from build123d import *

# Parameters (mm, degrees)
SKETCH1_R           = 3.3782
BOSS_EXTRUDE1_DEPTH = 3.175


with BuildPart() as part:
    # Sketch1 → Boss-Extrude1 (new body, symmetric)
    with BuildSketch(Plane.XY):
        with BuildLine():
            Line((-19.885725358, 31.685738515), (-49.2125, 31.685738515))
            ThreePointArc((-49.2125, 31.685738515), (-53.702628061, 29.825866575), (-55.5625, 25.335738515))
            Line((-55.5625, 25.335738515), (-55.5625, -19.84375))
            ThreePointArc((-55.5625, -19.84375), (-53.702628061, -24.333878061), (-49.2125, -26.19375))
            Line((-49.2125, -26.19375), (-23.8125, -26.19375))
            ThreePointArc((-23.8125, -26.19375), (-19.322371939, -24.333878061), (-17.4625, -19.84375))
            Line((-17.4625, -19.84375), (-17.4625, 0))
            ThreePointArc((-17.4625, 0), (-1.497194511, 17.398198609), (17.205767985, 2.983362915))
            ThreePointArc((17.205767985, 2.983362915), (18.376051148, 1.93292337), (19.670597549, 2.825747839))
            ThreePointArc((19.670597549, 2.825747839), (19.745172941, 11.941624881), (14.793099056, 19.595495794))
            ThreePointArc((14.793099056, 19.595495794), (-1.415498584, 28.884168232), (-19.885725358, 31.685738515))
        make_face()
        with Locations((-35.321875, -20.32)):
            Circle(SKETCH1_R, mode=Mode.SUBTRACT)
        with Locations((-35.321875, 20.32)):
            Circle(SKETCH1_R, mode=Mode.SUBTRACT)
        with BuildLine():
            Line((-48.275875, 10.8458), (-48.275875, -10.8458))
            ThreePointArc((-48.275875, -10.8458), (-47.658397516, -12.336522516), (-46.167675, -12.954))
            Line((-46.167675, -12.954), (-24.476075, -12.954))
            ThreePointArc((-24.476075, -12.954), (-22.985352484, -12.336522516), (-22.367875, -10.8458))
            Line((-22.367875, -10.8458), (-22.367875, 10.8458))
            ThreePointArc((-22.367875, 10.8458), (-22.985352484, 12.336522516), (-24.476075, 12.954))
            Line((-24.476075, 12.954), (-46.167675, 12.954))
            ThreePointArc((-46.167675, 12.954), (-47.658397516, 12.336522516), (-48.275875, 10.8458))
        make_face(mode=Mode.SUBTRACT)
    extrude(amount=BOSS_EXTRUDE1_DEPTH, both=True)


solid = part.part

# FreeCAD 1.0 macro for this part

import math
import FreeCAD as App
import Part
import Sketcher

V = App.Vector
Q = App.Units.Quantity

doc = App.newDocument("Part")
params = doc.addObject("Spreadsheet::Sheet", "Params")
for row, (alias, value) in enumerate([
    ("sketch1_radius", "2 in"),
    ("sketch1_width", "1 in"),
    ("sketch1_radius2", "0.25 in"),
    ("sketch1_radius3", "0.05 in"),
    ("sketch1_diameter", "0.266 in"),
    ("pad1_length", "0.25 in"),
], start=1):
    params.set(f"A{row}", alias)
    params.set(f"B{row}", "=" + value)
    params.setAlias(f"B{row}", alias)

body = doc.addObject("PartDesign::Body", "Body")

# Sketch on XY plane
sketch1 = doc.addObject("Sketcher::SketchObject", "Sketch")
body.addObject(sketch1)
sketch1.AttachmentSupport = (doc.XY_Plane, [""])
sketch1.MapMode = "FlatFace"
sketch1.addGeometry(Part.LineSegment(V(-19.885725, 31.685739, 0), V(-49.2125, 31.685739, 0)), False)
sketch1.addGeometry(Part.ArcOfCircle(Part.Circle(V(-49.2125, 25.335739, 0), V(0, 0, 1), 6.35), math.radians(90), math.radians(180)), False)
sketch1.addGeometry(Part.LineSegment(V(-55.5625, 25.335739, 0), V(-55.5625, -19.84375, 0)), False)
sketch1.addGeometry(Part.ArcOfCircle(Part.Circle(V(-49.2125, -19.84375, 0), V(0, 0, 1), 6.35), math.radians(180), math.radians(270)), False)
sketch1.addGeometry(Part.LineSegment(V(-49.2125, -26.19375, 0), V(-23.8125, -26.19375, 0)), False)
sketch1.addGeometry(Part.ArcOfCircle(Part.Circle(V(-23.8125, -19.84375, 0), V(0, 0, 1), 6.35), math.radians(-90), math.radians(0)), False)
sketch1.addGeometry(Part.LineSegment(V(-17.4625, -19.84375, 0), V(-17.4625, 0, 0)), False)
sketch1.addGeometry(Part.ArcOfCircle(Part.Circle(V(0, 0, 0), V(0, 0, 1), 17.4625), math.radians(9.836893), math.radians(180)), False)
sketch1.addGeometry(Part.ArcOfCircle(Part.Circle(V(18.457097, 3.200335, 0), V(0, 0, 1), 1.27), math.radians(-170.163107), math.radians(-17.154559)), False)
sketch1.addGeometry(Part.ArcOfCircle(Part.Circle(V(4.501835, 7.508084, 0), V(0, 0, 1), 15.875), math.radians(-17.154559), math.radians(49.588812)), False)
sketch1.addGeometry(Part.ArcOfCircle(Part.Circle(V(-18.138945, -19.084221, 0), V(0, 0, 1), 50.8), math.radians(49.588813), math.radians(91.970529)), False)
sketch1.addGeometry(Part.Circle(V(-35.321875, -20.32, 0), V(0, 0, 1), 3.3782), False)
sketch1.addGeometry(Part.LineSegment(V(-48.275875, -10.8458, 0), V(-48.275875, 10.8458, 0)), False)
sketch1.addGeometry(Part.ArcOfCircle(Part.Circle(V(-46.167675, 10.8458, 0), V(0, 0, 1), 2.1082), math.radians(90), math.radians(180)), False)
sketch1.addGeometry(Part.LineSegment(V(-46.167675, 12.954, 0), V(-24.476075, 12.954, 0)), False)
sketch1.addGeometry(Part.ArcOfCircle(Part.Circle(V(-24.476075, 10.8458, 0), V(0, 0, 1), 2.1082), math.radians(0), math.radians(90)), False)
sketch1.addGeometry(Part.LineSegment(V(-22.367875, 10.8458, 0), V(-22.367875, -10.8458, 0)), False)
sketch1.addGeometry(Part.ArcOfCircle(Part.Circle(V(-24.476075, -10.8458, 0), V(0, 0, 1), 2.1082), math.radians(-90), math.radians(0)), False)
sketch1.addGeometry(Part.LineSegment(V(-24.476075, -12.954, 0), V(-46.167675, -12.954, 0)), False)
sketch1.addGeometry(Part.ArcOfCircle(Part.Circle(V(-46.167675, -10.8458, 0), V(0, 0, 1), 2.1082), math.radians(180), math.radians(270)), False)
sketch1.addGeometry(Part.Circle(V(-35.321875, 20.32, 0), V(0, 0, 1), 3.3782), False)
sketch1.addConstraint(Sketcher.Constraint("Tangent", 0, 2, 1, 1))
sketch1.addConstraint(Sketcher.Constraint("Tangent", 1, 2, 2, 1))
sketch1.addConstraint(Sketcher.Constraint("Tangent", 2, 2, 3, 1))
sketch1.addConstraint(Sketcher.Constraint("Tangent", 3, 2, 4, 1))
sketch1.addConstraint(Sketcher.Constraint("Tangent", 4, 2, 5, 1))
sketch1.addConstraint(Sketcher.Constraint("Tangent", 5, 2, 6, 1))
sketch1.addConstraint(Sketcher.Constraint("Tangent", 6, 2, 7, 2))
sketch1.addConstraint(Sketcher.Constraint("Tangent", 7, 1, 8, 1))
sketch1.addConstraint(Sketcher.Constraint("Tangent", 8, 2, 9, 1))
sketch1.addConstraint(Sketcher.Constraint("Tangent", 9, 2, 10, 1))
sketch1.addConstraint(Sketcher.Constraint("Coincident", 10, 2, 0, 1))
sketch1.addConstraint(Sketcher.Constraint("Tangent", 12, 2, 13, 2))
sketch1.addConstraint(Sketcher.Constraint("Tangent", 13, 1, 14, 1))
sketch1.addConstraint(Sketcher.Constraint("Tangent", 14, 2, 15, 2))
sketch1.addConstraint(Sketcher.Constraint("Tangent", 15, 1, 16, 1))
sketch1.addConstraint(Sketcher.Constraint("Tangent", 16, 2, 17, 2))
sketch1.addConstraint(Sketcher.Constraint("Tangent", 17, 1, 18, 1))
sketch1.addConstraint(Sketcher.Constraint("Tangent", 18, 2, 19, 2))
sketch1.addConstraint(Sketcher.Constraint("Tangent", 19, 1, 12, 1))
sketch1.addConstraint(Sketcher.Constraint("Horizontal", 0))
sketch1.addConstraint(Sketcher.Constraint("Vertical", 2))
sketch1.addConstraint(Sketcher.Constraint("Horizontal", 4))
sketch1.addConstraint(Sketcher.Constraint("Vertical", 6))
sketch1.addConstraint(Sketcher.Constraint("Vertical", 12))
sketch1.addConstraint(Sketcher.Constraint("Horizontal", 14))
sketch1.addConstraint(Sketcher.Constraint("Vertical", 16))
sketch1.addConstraint(Sketcher.Constraint("Horizontal", 18))
sketch1.addConstraint(Sketcher.Constraint("Coincident", 7, 3, -1, 1))
sketch1.addConstraint(Sketcher.Constraint("Equal", 1, 3))
sketch1.addConstraint(Sketcher.Constraint("Equal", 3, 5))
sketch1.addConstraint(Sketcher.Constraint("Equal", 13, 15))
sketch1.addConstraint(Sketcher.Constraint("Equal", 15, 17))
sketch1.addConstraint(Sketcher.Constraint("Equal", 17, 19))
sketch1.addConstraint(Sketcher.Constraint("Equal", 11, 20))
sketch1.addConstraint(Sketcher.Constraint("Symmetric", 11, 3, 20, 3, -1))
sketch1.addConstraint(Sketcher.Constraint("Equal", 18, 12))
sketch1.addConstraint(Sketcher.Constraint("Radius", 10, Q("2 in")))
sketch1.addConstraint(Sketcher.Constraint("DistanceX", 4, 1, 4, 2, Q("1 in")))
sketch1.addConstraint(Sketcher.Constraint("Radius", 1, Q("0.25 in")))
sketch1.addConstraint(Sketcher.Constraint("Radius", 8, Q("0.05 in")))
sketch1.addConstraint(Sketcher.Constraint("Diameter", 11, Q("0.266 in")))
sketch1.addConstraint(Sketcher.Constraint("Radius", 7, Q("0.6875 in")))
sketch1.addConstraint(Sketcher.Constraint("Radius", 9, Q("0.625 in")))
sketch1.addConstraint(Sketcher.Constraint("Radius", 13, Q("0.083 in")))
sketch1.addConstraint(Sketcher.Constraint("DistanceY", 11, 3, -1, 1, Q("0.8 in")))
sketch1.addConstraint(Sketcher.Constraint("DistanceX", 14, 1, 14, 2, Q("0.854 in")))
sketch1.addConstraint(Sketcher.Constraint("DistanceY", 6, 1, 6, 2, Q("0.78125 in")))
sketch1.addConstraint(Sketcher.Constraint("DistanceY", -1, 1, 13, 1, Q("0.51 in")))
sketch1.addConstraint(Sketcher.Constraint("DistanceX", 12, 2, 20, 3, Q("0.51 in")))
sketch1.addConstraint(Sketcher.Constraint("DistanceX", 11, 3, -1, 1, Q("1.390625 in")))
sketch1.addConstraint(Sketcher.Constraint("DistanceY", 2, 2, 2, 1, Q("45.179489 mm")))
sketch1.addConstraint(Sketcher.Constraint("DistanceX", -1, 1, 9, 2, Q("14.793099 mm")))
sketch1.addConstraint(Sketcher.Constraint("DistanceX", 8, 3, 8, 2, Q("1.213501 mm")))
sketch1.addConstraint(Sketcher.Constraint("DistanceX", 0, 2, 0, 1, Q("29.326775 mm")))
sketch1.setExpression("Constraints[36]", "Params.sketch1_radius")
sketch1.setExpression("Constraints[37]", "Params.sketch1_width")
sketch1.setExpression("Constraints[38]", "Params.sketch1_radius2")
sketch1.setExpression("Constraints[39]", "Params.sketch1_radius3")
sketch1.setExpression("Constraints[40]", "Params.sketch1_diameter")
pad1 = doc.addObject("PartDesign::Pad", "Pad")
body.addObject(pad1)
pad1.Profile = sketch1
pad1.setExpression("Length", "Params.pad1_length")
pad1.Midplane = True

doc.recompute()
